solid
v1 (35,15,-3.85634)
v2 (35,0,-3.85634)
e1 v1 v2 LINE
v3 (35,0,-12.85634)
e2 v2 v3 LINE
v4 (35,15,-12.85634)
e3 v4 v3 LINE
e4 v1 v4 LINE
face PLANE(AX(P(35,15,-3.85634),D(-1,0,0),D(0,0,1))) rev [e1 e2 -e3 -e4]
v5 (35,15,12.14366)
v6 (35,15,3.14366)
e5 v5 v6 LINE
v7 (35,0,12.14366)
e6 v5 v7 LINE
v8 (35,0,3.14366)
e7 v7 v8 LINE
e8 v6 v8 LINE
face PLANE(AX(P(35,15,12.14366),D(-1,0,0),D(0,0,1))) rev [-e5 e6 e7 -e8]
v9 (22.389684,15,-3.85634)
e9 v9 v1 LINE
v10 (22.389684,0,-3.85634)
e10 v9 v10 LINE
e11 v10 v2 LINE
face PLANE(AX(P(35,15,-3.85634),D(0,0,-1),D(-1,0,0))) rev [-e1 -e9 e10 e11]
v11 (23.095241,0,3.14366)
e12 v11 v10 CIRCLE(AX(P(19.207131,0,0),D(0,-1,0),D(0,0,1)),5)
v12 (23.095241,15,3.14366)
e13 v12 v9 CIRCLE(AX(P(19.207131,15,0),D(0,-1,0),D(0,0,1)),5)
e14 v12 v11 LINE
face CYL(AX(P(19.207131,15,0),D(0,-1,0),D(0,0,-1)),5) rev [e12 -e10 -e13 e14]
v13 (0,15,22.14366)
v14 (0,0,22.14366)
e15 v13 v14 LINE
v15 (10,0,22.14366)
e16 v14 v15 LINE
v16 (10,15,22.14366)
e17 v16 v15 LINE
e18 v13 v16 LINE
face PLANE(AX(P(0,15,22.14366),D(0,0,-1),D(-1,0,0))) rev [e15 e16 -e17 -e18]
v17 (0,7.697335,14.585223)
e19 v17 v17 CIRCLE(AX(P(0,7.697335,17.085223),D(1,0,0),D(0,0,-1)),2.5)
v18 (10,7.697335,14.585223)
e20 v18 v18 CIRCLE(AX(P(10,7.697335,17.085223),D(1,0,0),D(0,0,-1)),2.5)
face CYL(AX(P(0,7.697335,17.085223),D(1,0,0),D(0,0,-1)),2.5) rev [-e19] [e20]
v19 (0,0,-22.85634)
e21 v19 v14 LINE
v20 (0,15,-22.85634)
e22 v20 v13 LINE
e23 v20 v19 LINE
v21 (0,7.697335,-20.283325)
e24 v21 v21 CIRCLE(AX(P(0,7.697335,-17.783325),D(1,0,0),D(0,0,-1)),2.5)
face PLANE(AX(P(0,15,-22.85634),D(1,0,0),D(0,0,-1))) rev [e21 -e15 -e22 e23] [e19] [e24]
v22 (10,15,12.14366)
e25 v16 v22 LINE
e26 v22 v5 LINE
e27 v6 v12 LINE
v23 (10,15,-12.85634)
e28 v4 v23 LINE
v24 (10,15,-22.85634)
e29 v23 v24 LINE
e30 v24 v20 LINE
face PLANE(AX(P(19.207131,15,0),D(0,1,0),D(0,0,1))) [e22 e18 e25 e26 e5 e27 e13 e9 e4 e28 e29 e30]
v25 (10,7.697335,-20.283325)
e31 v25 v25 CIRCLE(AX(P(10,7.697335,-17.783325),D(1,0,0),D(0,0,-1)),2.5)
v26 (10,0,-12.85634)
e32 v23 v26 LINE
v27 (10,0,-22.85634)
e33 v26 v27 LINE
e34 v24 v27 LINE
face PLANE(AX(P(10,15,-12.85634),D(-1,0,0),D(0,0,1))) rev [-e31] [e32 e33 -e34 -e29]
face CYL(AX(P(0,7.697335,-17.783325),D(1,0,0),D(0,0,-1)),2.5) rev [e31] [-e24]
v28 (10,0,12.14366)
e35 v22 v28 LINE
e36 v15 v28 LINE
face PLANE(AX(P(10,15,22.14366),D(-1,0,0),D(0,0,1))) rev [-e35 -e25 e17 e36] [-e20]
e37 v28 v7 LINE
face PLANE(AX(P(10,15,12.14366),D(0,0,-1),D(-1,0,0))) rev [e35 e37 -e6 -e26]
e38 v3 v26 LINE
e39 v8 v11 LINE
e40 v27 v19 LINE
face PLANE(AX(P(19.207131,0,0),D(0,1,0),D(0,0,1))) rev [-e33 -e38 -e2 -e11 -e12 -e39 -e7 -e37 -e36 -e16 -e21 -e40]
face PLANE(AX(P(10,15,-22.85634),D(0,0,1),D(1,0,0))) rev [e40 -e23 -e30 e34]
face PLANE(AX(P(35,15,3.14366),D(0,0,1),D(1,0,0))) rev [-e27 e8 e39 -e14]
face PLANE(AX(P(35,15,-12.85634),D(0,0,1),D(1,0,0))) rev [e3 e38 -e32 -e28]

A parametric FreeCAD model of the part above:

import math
import FreeCAD as App
import Part
import Sketcher

V = App.Vector
Q = App.Units.Quantity

doc = App.newDocument("Part")
body = doc.addObject("PartDesign::Body", "Body")

sketch1 = body.newObject("Sketcher::SketchObject", "Sketch")
sketch1.AttachmentSupport = (doc.getObject("XZ_Plane"), [""])
sketch1.MapMode = "FlatFace"
sketch1.addGeometry(Part.LineSegment(V(0, -23, 0), V(0, 22, 0)), False)
sketch1.addGeometry(Part.LineSegment(V(0, 22, 0), V(10, 22, 0)), False)
sketch1.addGeometry(Part.LineSegment(V(10, 22, 0), V(10, 12, 0)), False)
sketch1.addGeometry(Part.LineSegment(V(10, 12, 0), V(35, 12, 0)), False)
sketch1.addGeometry(Part.LineSegment(V(35, 12, 0), V(35, 3, 0)), False)
sketch1.addGeometry(Part.LineSegment(V(35, 3, 0), V(23, 3, 0)), False)
sketch1.addGeometry(Part.ArcOfCircle(Part.Circle(V(19, 0, 0), V(0, 0, 1), 5), math.radians(39), math.radians(310)), False)
sketch1.addGeometry(Part.LineSegment(V(22, -4, 0), V(35, -4, 0)), False)
sketch1.addGeometry(Part.LineSegment(V(35, -4, 0), V(35, -13, 0)), False)
sketch1.addGeometry(Part.LineSegment(V(35, -13, 0), V(10, -13, 0)), False)
sketch1.addGeometry(Part.LineSegment(V(10, -13, 0), V(10, -23, 0)), False)
sketch1.addGeometry(Part.LineSegment(V(10, -23, 0), V(0, -23, 0)), False)
sketch1.addConstraint(Sketcher.Constraint("Coincident", 0, 2, 1, 1))
sketch1.addConstraint(Sketcher.Constraint("Coincident", 1, 2, 2, 1))
sketch1.addConstraint(Sketcher.Constraint("Coincident", 2, 2, 3, 1))
sketch1.addConstraint(Sketcher.Constraint("Coincident", 3, 2, 4, 1))
sketch1.addConstraint(Sketcher.Constraint("Coincident", 4, 2, 5, 1))
sketch1.addConstraint(Sketcher.Constraint("Coincident", 5, 2, 6, 1))
sketch1.addConstraint(Sketcher.Constraint("Coincident", 6, 2, 7, 1))
sketch1.addConstraint(Sketcher.Constraint("Coincident", 7, 2, 8, 1))
sketch1.addConstraint(Sketcher.Constraint("Coincident", 8, 2, 9, 1))
sketch1.addConstraint(Sketcher.Constraint("Coincident", 9, 2, 10, 1))
sketch1.addConstraint(Sketcher.Constraint("Coincident", 10, 2, 11, 1))
sketch1.addConstraint(Sketcher.Constraint("Coincident", 11, 2, 0, 1))
sketch1.addConstraint(Sketcher.Constraint("Vertical", 0))
sketch1.addConstraint(Sketcher.Constraint("Horizontal", 1))
sketch1.addConstraint(Sketcher.Constraint("Vertical", 2))
sketch1.addConstraint(Sketcher.Constraint("Horizontal", 3))
sketch1.addConstraint(Sketcher.Constraint("Vertical", 4))
sketch1.addConstraint(Sketcher.Constraint("Horizontal", 5))
sketch1.addConstraint(Sketcher.Constraint("Horizontal", 7))
sketch1.addConstraint(Sketcher.Constraint("Vertical", 8))
sketch1.addConstraint(Sketcher.Constraint("Horizontal", 9))
sketch1.addConstraint(Sketcher.Constraint("Vertical", 10))
sketch1.addConstraint(Sketcher.Constraint("Horizontal", 11))
sketch1.addConstraint(Sketcher.Constraint("PointOnObject", 6, 3, -1))
sketch1.addConstraint(Sketcher.Constraint("PointOnObject", 0, 2, -2))
sketch1.addConstraint(Sketcher.Constraint("Vertical", 4, 2, 7, 2))
sketch1.addConstraint(Sketcher.Constraint("Vertical", 2, 2, 9, 2))
sketch1.addConstraint(Sketcher.Constraint("Equal", 11, 2))
sketch1.addConstraint(Sketcher.Constraint("Equal", 4, 8))
sketch1.addConstraint(Sketcher.Constraint("Equal", 2, 10))
sketch1.addConstraint(Sketcher.Constraint("Radius", 6, Q("5 mm")))
sketch1.addConstraint(Sketcher.Constraint("DistanceX", 1, 1, 1, 2, Q("10 mm")))
sketch1.addConstraint(Sketcher.Constraint("DistanceX", 3, 1, 3, 2, Q("25 mm")))
sketch1.addConstraint(Sketcher.Constraint("DistanceY", 0, 1, 0, 2, Q("45 mm")))
sketch1.addConstraint(Sketcher.Constraint("DistanceY", 4, 2, 4, 1, Q("9 mm")))
sketch1.addConstraint(Sketcher.Constraint("DistanceX", 5, 2, 5, 1, Q("11.904759 mm")))
sketch1.addConstraint(Sketcher.Constraint("DistanceX", 7, 1, 7, 2, Q("12.610316 mm")))
pad1 = body.newObject("PartDesign::Pad", "Pad")
pad1.Profile = sketch1
pad1.Length = 15
pad1.Reversed = True

sketch2 = body.newObject("Sketcher::SketchObject", "Sketch001")
sketch2.AttachmentSupport = (doc.getObject("YZ_Plane"), [""])
sketch2.MapMode = "FlatFace"
sketch2.AttachmentOffset = App.Placement(V(0, 0, 10), App.Rotation())
sketch2.addGeometry(Part.Circle(V(7.7, 17.1, 0), V(0, 0, 1), 2.5), False)
sketch2.addGeometry(Part.Circle(V(7.7, -17.8, 0), V(0, 0, 1), 2.5), False)
sketch2.addConstraint(Sketcher.Constraint("Equal", 0, 1))
sketch2.addConstraint(Sketcher.Constraint("Vertical", 0, 3, 1, 3))
sketch2.addConstraint(Sketcher.Constraint("Diameter", 0, Q("5 mm")))
sketch2.addConstraint(Sketcher.Constraint("DistanceY", 1, 3, 0, 3, Q("34.868548 mm")))
sketch2.addConstraint(Sketcher.Constraint("DistanceX", -1, 1, 0, 3, Q("7.697335 mm")))
sketch2.addConstraint(Sketcher.Constraint("DistanceY", -1, 1, 0, 3, Q("17.085223 mm")))
pocket1 = body.newObject("PartDesign::Pocket", "Pocket")
pocket1.Profile = sketch2
pocket1.Length = 10

doc.recompute()
